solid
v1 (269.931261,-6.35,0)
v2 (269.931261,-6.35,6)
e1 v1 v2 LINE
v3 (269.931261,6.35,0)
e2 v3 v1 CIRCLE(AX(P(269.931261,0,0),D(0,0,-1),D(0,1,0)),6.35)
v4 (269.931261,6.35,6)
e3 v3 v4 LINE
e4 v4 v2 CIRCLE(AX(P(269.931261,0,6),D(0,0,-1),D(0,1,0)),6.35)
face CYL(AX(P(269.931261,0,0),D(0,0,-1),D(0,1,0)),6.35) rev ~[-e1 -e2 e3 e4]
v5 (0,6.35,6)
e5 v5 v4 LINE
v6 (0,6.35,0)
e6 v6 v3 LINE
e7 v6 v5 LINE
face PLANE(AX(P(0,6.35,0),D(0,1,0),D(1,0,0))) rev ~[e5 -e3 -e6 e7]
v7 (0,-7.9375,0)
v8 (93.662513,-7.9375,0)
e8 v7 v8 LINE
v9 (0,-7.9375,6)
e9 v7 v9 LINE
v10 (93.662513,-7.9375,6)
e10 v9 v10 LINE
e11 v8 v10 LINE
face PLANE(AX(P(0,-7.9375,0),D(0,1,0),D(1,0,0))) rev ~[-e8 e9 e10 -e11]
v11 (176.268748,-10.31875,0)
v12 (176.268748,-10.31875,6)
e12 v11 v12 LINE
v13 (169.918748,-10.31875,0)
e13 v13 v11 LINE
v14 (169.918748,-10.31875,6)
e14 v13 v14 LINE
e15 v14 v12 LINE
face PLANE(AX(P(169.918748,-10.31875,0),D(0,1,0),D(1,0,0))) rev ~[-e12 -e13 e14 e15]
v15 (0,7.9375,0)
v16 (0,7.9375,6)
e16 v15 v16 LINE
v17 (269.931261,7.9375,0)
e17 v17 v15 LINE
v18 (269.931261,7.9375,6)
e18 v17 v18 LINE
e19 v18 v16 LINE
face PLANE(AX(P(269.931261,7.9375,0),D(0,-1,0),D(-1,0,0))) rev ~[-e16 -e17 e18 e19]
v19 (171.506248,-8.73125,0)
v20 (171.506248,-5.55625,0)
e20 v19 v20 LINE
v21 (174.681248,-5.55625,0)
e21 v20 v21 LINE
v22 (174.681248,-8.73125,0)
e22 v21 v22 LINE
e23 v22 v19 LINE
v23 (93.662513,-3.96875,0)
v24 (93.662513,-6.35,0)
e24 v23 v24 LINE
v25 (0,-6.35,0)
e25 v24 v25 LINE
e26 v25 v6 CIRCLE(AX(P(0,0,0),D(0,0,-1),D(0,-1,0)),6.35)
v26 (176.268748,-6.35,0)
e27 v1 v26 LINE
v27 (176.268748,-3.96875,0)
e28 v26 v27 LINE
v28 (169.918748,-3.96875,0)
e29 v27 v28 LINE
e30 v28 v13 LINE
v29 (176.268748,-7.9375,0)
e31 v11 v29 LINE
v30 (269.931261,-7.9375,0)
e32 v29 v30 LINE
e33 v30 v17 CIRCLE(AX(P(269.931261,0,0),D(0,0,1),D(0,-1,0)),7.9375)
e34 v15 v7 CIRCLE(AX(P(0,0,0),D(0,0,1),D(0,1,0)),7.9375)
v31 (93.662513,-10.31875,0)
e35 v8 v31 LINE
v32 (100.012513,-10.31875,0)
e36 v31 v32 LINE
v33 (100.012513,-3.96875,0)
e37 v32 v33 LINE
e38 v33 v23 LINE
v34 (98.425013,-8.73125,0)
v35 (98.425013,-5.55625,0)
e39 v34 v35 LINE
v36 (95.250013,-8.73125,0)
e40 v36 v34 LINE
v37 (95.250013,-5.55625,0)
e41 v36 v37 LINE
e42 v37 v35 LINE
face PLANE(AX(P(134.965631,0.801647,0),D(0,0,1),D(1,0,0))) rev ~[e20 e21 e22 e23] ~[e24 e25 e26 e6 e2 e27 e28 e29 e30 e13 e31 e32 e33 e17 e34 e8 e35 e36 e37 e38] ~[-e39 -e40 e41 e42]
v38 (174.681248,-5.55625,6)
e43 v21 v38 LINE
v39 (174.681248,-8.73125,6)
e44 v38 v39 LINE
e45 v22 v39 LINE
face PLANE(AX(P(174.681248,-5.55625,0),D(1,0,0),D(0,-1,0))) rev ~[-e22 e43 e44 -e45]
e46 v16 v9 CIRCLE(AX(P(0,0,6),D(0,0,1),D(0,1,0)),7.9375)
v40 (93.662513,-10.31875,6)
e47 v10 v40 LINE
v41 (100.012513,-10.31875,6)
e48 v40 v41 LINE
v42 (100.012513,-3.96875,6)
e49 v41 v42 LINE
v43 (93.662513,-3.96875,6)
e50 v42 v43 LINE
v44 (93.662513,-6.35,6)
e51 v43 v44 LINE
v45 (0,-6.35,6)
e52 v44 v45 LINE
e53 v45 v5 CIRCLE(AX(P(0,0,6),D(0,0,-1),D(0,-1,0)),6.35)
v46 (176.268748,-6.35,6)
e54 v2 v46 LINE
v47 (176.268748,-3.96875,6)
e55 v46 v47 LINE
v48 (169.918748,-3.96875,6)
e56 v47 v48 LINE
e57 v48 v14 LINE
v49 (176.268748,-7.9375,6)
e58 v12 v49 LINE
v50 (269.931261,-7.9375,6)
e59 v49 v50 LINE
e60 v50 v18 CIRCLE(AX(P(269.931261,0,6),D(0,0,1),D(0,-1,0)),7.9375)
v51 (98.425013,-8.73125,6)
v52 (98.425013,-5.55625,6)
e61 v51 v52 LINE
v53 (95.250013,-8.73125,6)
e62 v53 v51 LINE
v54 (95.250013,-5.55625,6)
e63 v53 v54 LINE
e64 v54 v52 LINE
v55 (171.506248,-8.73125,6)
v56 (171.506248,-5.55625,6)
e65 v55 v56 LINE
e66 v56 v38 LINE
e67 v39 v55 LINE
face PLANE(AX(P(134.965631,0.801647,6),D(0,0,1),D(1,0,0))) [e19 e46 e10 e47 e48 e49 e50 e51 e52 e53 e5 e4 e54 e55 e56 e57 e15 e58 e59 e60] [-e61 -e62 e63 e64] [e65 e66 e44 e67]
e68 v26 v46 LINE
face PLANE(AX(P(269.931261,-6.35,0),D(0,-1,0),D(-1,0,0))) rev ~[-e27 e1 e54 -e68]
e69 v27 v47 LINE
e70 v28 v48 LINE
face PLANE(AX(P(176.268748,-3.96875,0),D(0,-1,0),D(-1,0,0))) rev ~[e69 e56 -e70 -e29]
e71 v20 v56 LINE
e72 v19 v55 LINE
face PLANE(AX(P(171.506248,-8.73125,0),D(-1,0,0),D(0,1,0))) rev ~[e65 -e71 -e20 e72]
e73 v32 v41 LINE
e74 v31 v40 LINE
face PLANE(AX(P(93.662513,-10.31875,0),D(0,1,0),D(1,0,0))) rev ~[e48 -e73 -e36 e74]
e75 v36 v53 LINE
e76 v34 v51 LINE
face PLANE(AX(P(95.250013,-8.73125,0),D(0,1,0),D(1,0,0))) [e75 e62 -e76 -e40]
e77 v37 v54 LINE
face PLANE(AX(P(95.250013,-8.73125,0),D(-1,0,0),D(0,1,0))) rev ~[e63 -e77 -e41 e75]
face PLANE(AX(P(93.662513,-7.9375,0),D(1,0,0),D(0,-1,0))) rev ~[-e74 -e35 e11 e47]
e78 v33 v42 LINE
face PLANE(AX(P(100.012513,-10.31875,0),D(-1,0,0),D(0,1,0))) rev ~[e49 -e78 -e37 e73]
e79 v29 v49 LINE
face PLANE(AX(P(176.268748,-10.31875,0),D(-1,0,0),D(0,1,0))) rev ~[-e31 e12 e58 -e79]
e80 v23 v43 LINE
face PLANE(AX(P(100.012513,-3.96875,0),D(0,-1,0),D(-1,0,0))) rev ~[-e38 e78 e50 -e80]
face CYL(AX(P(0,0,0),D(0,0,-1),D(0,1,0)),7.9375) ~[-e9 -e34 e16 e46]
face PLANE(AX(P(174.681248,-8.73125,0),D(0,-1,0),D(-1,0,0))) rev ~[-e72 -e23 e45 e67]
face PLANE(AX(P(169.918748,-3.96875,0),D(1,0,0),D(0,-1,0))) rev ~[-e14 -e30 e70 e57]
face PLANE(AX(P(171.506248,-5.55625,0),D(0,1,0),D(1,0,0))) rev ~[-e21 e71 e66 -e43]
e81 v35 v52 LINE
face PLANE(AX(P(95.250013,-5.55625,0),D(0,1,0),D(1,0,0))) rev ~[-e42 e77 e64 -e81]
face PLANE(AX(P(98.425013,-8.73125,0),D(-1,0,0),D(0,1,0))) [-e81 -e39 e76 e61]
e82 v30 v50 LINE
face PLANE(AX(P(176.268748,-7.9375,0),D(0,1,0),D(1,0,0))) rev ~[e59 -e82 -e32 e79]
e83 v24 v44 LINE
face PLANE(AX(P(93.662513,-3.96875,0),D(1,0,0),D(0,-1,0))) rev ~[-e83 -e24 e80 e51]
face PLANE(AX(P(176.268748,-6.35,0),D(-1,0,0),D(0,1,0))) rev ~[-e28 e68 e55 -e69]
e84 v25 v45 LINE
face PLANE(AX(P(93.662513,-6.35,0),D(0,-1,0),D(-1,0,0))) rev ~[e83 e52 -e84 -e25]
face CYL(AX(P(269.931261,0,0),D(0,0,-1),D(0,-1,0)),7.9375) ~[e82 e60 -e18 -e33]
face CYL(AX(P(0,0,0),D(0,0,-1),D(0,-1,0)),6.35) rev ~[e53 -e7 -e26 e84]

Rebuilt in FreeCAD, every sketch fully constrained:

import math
import FreeCAD as App
import Part
import Sketcher
from FreeCAD import Vector
Q = App.Units.Quantity

doc = App.newDocument("Part")
body = doc.addObject("PartDesign::Body", "Body")

sketch1 = body.newObject("Sketcher::SketchObject", "Sketch")
sketch1.AttachmentSupport = (doc.getObject("XY_Plane"), [""])
sketch1.MapMode = "FlatFace"
sketch1.addGeometry([
    Part.ArcOfCircle(Part.Circle(Vector(269.931261, 0, 0), Vector(0, 0, 1), 7.9375), math.radians(-90), math.radians(90)),
    Part.LineSegment(Vector(269.931261, 7.9375, 0), Vector(0, 7.9375, 0)),
    Part.ArcOfCircle(Part.Circle(Vector(0, 0, 0), Vector(0, 0, 1), 7.9375), math.radians(90), math.radians(270)),
    Part.LineSegment(Vector(0, -7.9375, 0), Vector(93.662513, -7.9375, 0)),
    Part.LineSegment(Vector(93.662513, -7.9375, 0), Vector(93.662513, -10.31875, 0)),
    Part.LineSegment(Vector(93.662513, -10.31875, 0), Vector(100.012513, -10.31875, 0)),
    Part.LineSegment(Vector(100.012513, -10.31875, 0), Vector(100.012513, -3.96875, 0)),
    Part.LineSegment(Vector(100.012513, -3.96875, 0), Vector(93.662513, -3.96875, 0)),
    Part.LineSegment(Vector(93.662513, -3.96875, 0), Vector(93.662513, -6.35, 0)),
    Part.LineSegment(Vector(93.662513, -6.35, 0), Vector(0, -6.35, 0)),
    Part.ArcOfCircle(Part.Circle(Vector(0, 0, 0), Vector(0, 0, 1), 6.35), math.radians(90), math.radians(270)),
    Part.LineSegment(Vector(0, 6.35, 0), Vector(269.931261, 6.35, 0)),
    Part.ArcOfCircle(Part.Circle(Vector(269.931261, 0, 0), Vector(0, 0, 1), 6.35), math.radians(-90), math.radians(90)),
    Part.LineSegment(Vector(269.931261, -6.35, 0), Vector(176.268748, -6.35, 0)),
    Part.LineSegment(Vector(176.268748, -6.35, 0), Vector(176.268748, -3.96875, 0)),
    Part.LineSegment(Vector(176.268748, -3.96875, 0), Vector(169.918748, -3.96875, 0)),
    Part.LineSegment(Vector(169.918748, -3.96875, 0), Vector(169.918748, -10.31875, 0)),
    Part.LineSegment(Vector(169.918748, -10.31875, 0), Vector(176.268748, -10.31875, 0)),
    Part.LineSegment(Vector(176.268748, -10.31875, 0), Vector(176.268748, -7.9375, 0)),
    Part.LineSegment(Vector(176.268748, -7.9375, 0), Vector(269.931261, -7.9375, 0)),
    Part.LineSegment(Vector(98.425013, -8.73125, 0), Vector(95.250013, -8.73125, 0)),
    Part.LineSegment(Vector(95.250013, -8.73125, 0), Vector(95.250013, -5.55625, 0)),
    Part.LineSegment(Vector(95.250013, -5.55625, 0), Vector(98.425013, -5.55625, 0)),
    Part.LineSegment(Vector(98.425013, -5.55625, 0), Vector(98.425013, -8.73125, 0)),
    Part.LineSegment(Vector(171.506248, -8.73125, 0), Vector(171.506248, -5.55625, 0)),
    Part.LineSegment(Vector(171.506248, -5.55625, 0), Vector(174.681248, -5.55625, 0)),
    Part.LineSegment(Vector(174.681248, -5.55625, 0), Vector(174.681248, -8.73125, 0)),
    Part.LineSegment(Vector(174.681248, -8.73125, 0), Vector(171.506248, -8.73125, 0)),
], False)
sketch1.addConstraint([
    Sketcher.Constraint("Tangent", 0, 2, 1, 1),
    Sketcher.Constraint("Tangent", 1, 2, 2, 1),
    Sketcher.Constraint("Tangent", 2, 2, 3, 1),
    Sketcher.Constraint("Coincident", 3, 2, 4, 1),
    Sketcher.Constraint("Coincident", 4, 2, 5, 1),
    Sketcher.Constraint("Coincident", 5, 2, 6, 1),
    Sketcher.Constraint("Coincident", 6, 2, 7, 1),
    Sketcher.Constraint("Coincident", 7, 2, 8, 1),
    Sketcher.Constraint("Coincident", 8, 2, 9, 1),
    Sketcher.Constraint("Tangent", 9, 2, 10, 2),
    Sketcher.Constraint("Tangent", 10, 1, 11, 1),
    Sketcher.Constraint("Tangent", 11, 2, 12, 2),
    Sketcher.Constraint("Tangent", 12, 1, 13, 1),
    Sketcher.Constraint("Coincident", 13, 2, 14, 1),
    Sketcher.Constraint("Coincident", 14, 2, 15, 1),
    Sketcher.Constraint("Coincident", 15, 2, 16, 1),
    Sketcher.Constraint("Coincident", 16, 2, 17, 1),
    Sketcher.Constraint("Coincident", 17, 2, 18, 1),
    Sketcher.Constraint("Coincident", 18, 2, 19, 1),
    Sketcher.Constraint("Tangent", 19, 2, 0, 1),
    Sketcher.Constraint("Coincident", 20, 2, 21, 1),
    Sketcher.Constraint("Coincident", 21, 2, 22, 1),
    Sketcher.Constraint("Coincident", 22, 2, 23, 1),
    Sketcher.Constraint("Coincident", 23, 2, 20, 1),
    Sketcher.Constraint("Coincident", 24, 2, 25, 1),
    Sketcher.Constraint("Coincident", 25, 2, 26, 1),
    Sketcher.Constraint("Coincident", 26, 2, 27, 1),
    Sketcher.Constraint("Coincident", 27, 2, 24, 1),
    Sketcher.Constraint("Horizontal", 1),
    Sketcher.Constraint("Horizontal", 3),
    Sketcher.Constraint("Vertical", 4),
    Sketcher.Constraint("Horizontal", 5),
    Sketcher.Constraint("Vertical", 6),
    Sketcher.Constraint("Horizontal", 7),
    Sketcher.Constraint("Vertical", 8),
    Sketcher.Constraint("Horizontal", 9),
    Sketcher.Constraint("Horizontal", 11),
    Sketcher.Constraint("Horizontal", 13),
    Sketcher.Constraint("Vertical", 14),
    Sketcher.Constraint("Horizontal", 15),
    Sketcher.Constraint("Vertical", 16),
    Sketcher.Constraint("Horizontal", 17),
    Sketcher.Constraint("Vertical", 18),
    Sketcher.Constraint("Horizontal", 19),
    Sketcher.Constraint("Horizontal", 20),
    Sketcher.Constraint("Vertical", 21),
    Sketcher.Constraint("Horizontal", 22),
    Sketcher.Constraint("Vertical", 23),
    Sketcher.Constraint("Vertical", 24),
    Sketcher.Constraint("Horizontal", 25),
    Sketcher.Constraint("Vertical", 26),
    Sketcher.Constraint("Horizontal", 27),
    Sketcher.Constraint("Coincident", 2, 3, -1, 1),
    Sketcher.Constraint("Coincident", 10, 3, -1, 1),
    Sketcher.Constraint("Coincident", 12, 3, 0, 3),
    Sketcher.Constraint("Equal", 0, 2),
    Sketcher.Constraint("Horizontal", 7, 2, 14, 2),
    Sketcher.Constraint("Horizontal", 5, 2, 16, 2),
    Sketcher.Constraint("Horizontal", 22, 2, 24, 2),
    Sketcher.Constraint("Horizontal", 23, 2, 26, 2),
    Sketcher.Constraint("Vertical", 4, 2, 7, 2),
    Sketcher.Constraint("Vertical", 14, 2, 17, 2),
    Sketcher.Constraint("Equal", 9, 13),
    Sketcher.Constraint("Equal", 7, 15),
    Sketcher.Constraint("Equal", 22, 25),
    Sketcher.Constraint("Equal", 17, 6),
    Sketcher.Constraint("Equal", 4, 8),
    Sketcher.Constraint("Equal", 27, 21),
    Sketcher.Constraint("Radius", 10, Q("0.25 in")),
    Sketcher.Constraint("Radius", 0, Q("0.3125 in")),
    Sketcher.Constraint("DistanceX", 5, 1, 5, 2, Q("0.25 in")),
    Sketcher.Constraint("DistanceX", 20, 2, 20, 1, Q("0.125 in")),
    Sketcher.Constraint("DistanceY", 20, 2, -1, 1, Q("0.34375 in")),
    Sketcher.Constraint("DistanceX", 3, 2, 20, 2, Q("0.0625 in")),
    Sketcher.Constraint("DistanceX", 15, 2, 24, 2, Q("0.0625 in")),
    Sketcher.Constraint("DistanceX", 1, 2, 1, 1, Q("269.931261 mm")),
    Sketcher.Constraint("DistanceX", 3, 1, 3, 2, Q("93.662513 mm")),
])
pad1 = body.newObject("PartDesign::Pad", "Pad")
pad1.Profile = sketch1
pad1.Length = 6

doc.recompute()
